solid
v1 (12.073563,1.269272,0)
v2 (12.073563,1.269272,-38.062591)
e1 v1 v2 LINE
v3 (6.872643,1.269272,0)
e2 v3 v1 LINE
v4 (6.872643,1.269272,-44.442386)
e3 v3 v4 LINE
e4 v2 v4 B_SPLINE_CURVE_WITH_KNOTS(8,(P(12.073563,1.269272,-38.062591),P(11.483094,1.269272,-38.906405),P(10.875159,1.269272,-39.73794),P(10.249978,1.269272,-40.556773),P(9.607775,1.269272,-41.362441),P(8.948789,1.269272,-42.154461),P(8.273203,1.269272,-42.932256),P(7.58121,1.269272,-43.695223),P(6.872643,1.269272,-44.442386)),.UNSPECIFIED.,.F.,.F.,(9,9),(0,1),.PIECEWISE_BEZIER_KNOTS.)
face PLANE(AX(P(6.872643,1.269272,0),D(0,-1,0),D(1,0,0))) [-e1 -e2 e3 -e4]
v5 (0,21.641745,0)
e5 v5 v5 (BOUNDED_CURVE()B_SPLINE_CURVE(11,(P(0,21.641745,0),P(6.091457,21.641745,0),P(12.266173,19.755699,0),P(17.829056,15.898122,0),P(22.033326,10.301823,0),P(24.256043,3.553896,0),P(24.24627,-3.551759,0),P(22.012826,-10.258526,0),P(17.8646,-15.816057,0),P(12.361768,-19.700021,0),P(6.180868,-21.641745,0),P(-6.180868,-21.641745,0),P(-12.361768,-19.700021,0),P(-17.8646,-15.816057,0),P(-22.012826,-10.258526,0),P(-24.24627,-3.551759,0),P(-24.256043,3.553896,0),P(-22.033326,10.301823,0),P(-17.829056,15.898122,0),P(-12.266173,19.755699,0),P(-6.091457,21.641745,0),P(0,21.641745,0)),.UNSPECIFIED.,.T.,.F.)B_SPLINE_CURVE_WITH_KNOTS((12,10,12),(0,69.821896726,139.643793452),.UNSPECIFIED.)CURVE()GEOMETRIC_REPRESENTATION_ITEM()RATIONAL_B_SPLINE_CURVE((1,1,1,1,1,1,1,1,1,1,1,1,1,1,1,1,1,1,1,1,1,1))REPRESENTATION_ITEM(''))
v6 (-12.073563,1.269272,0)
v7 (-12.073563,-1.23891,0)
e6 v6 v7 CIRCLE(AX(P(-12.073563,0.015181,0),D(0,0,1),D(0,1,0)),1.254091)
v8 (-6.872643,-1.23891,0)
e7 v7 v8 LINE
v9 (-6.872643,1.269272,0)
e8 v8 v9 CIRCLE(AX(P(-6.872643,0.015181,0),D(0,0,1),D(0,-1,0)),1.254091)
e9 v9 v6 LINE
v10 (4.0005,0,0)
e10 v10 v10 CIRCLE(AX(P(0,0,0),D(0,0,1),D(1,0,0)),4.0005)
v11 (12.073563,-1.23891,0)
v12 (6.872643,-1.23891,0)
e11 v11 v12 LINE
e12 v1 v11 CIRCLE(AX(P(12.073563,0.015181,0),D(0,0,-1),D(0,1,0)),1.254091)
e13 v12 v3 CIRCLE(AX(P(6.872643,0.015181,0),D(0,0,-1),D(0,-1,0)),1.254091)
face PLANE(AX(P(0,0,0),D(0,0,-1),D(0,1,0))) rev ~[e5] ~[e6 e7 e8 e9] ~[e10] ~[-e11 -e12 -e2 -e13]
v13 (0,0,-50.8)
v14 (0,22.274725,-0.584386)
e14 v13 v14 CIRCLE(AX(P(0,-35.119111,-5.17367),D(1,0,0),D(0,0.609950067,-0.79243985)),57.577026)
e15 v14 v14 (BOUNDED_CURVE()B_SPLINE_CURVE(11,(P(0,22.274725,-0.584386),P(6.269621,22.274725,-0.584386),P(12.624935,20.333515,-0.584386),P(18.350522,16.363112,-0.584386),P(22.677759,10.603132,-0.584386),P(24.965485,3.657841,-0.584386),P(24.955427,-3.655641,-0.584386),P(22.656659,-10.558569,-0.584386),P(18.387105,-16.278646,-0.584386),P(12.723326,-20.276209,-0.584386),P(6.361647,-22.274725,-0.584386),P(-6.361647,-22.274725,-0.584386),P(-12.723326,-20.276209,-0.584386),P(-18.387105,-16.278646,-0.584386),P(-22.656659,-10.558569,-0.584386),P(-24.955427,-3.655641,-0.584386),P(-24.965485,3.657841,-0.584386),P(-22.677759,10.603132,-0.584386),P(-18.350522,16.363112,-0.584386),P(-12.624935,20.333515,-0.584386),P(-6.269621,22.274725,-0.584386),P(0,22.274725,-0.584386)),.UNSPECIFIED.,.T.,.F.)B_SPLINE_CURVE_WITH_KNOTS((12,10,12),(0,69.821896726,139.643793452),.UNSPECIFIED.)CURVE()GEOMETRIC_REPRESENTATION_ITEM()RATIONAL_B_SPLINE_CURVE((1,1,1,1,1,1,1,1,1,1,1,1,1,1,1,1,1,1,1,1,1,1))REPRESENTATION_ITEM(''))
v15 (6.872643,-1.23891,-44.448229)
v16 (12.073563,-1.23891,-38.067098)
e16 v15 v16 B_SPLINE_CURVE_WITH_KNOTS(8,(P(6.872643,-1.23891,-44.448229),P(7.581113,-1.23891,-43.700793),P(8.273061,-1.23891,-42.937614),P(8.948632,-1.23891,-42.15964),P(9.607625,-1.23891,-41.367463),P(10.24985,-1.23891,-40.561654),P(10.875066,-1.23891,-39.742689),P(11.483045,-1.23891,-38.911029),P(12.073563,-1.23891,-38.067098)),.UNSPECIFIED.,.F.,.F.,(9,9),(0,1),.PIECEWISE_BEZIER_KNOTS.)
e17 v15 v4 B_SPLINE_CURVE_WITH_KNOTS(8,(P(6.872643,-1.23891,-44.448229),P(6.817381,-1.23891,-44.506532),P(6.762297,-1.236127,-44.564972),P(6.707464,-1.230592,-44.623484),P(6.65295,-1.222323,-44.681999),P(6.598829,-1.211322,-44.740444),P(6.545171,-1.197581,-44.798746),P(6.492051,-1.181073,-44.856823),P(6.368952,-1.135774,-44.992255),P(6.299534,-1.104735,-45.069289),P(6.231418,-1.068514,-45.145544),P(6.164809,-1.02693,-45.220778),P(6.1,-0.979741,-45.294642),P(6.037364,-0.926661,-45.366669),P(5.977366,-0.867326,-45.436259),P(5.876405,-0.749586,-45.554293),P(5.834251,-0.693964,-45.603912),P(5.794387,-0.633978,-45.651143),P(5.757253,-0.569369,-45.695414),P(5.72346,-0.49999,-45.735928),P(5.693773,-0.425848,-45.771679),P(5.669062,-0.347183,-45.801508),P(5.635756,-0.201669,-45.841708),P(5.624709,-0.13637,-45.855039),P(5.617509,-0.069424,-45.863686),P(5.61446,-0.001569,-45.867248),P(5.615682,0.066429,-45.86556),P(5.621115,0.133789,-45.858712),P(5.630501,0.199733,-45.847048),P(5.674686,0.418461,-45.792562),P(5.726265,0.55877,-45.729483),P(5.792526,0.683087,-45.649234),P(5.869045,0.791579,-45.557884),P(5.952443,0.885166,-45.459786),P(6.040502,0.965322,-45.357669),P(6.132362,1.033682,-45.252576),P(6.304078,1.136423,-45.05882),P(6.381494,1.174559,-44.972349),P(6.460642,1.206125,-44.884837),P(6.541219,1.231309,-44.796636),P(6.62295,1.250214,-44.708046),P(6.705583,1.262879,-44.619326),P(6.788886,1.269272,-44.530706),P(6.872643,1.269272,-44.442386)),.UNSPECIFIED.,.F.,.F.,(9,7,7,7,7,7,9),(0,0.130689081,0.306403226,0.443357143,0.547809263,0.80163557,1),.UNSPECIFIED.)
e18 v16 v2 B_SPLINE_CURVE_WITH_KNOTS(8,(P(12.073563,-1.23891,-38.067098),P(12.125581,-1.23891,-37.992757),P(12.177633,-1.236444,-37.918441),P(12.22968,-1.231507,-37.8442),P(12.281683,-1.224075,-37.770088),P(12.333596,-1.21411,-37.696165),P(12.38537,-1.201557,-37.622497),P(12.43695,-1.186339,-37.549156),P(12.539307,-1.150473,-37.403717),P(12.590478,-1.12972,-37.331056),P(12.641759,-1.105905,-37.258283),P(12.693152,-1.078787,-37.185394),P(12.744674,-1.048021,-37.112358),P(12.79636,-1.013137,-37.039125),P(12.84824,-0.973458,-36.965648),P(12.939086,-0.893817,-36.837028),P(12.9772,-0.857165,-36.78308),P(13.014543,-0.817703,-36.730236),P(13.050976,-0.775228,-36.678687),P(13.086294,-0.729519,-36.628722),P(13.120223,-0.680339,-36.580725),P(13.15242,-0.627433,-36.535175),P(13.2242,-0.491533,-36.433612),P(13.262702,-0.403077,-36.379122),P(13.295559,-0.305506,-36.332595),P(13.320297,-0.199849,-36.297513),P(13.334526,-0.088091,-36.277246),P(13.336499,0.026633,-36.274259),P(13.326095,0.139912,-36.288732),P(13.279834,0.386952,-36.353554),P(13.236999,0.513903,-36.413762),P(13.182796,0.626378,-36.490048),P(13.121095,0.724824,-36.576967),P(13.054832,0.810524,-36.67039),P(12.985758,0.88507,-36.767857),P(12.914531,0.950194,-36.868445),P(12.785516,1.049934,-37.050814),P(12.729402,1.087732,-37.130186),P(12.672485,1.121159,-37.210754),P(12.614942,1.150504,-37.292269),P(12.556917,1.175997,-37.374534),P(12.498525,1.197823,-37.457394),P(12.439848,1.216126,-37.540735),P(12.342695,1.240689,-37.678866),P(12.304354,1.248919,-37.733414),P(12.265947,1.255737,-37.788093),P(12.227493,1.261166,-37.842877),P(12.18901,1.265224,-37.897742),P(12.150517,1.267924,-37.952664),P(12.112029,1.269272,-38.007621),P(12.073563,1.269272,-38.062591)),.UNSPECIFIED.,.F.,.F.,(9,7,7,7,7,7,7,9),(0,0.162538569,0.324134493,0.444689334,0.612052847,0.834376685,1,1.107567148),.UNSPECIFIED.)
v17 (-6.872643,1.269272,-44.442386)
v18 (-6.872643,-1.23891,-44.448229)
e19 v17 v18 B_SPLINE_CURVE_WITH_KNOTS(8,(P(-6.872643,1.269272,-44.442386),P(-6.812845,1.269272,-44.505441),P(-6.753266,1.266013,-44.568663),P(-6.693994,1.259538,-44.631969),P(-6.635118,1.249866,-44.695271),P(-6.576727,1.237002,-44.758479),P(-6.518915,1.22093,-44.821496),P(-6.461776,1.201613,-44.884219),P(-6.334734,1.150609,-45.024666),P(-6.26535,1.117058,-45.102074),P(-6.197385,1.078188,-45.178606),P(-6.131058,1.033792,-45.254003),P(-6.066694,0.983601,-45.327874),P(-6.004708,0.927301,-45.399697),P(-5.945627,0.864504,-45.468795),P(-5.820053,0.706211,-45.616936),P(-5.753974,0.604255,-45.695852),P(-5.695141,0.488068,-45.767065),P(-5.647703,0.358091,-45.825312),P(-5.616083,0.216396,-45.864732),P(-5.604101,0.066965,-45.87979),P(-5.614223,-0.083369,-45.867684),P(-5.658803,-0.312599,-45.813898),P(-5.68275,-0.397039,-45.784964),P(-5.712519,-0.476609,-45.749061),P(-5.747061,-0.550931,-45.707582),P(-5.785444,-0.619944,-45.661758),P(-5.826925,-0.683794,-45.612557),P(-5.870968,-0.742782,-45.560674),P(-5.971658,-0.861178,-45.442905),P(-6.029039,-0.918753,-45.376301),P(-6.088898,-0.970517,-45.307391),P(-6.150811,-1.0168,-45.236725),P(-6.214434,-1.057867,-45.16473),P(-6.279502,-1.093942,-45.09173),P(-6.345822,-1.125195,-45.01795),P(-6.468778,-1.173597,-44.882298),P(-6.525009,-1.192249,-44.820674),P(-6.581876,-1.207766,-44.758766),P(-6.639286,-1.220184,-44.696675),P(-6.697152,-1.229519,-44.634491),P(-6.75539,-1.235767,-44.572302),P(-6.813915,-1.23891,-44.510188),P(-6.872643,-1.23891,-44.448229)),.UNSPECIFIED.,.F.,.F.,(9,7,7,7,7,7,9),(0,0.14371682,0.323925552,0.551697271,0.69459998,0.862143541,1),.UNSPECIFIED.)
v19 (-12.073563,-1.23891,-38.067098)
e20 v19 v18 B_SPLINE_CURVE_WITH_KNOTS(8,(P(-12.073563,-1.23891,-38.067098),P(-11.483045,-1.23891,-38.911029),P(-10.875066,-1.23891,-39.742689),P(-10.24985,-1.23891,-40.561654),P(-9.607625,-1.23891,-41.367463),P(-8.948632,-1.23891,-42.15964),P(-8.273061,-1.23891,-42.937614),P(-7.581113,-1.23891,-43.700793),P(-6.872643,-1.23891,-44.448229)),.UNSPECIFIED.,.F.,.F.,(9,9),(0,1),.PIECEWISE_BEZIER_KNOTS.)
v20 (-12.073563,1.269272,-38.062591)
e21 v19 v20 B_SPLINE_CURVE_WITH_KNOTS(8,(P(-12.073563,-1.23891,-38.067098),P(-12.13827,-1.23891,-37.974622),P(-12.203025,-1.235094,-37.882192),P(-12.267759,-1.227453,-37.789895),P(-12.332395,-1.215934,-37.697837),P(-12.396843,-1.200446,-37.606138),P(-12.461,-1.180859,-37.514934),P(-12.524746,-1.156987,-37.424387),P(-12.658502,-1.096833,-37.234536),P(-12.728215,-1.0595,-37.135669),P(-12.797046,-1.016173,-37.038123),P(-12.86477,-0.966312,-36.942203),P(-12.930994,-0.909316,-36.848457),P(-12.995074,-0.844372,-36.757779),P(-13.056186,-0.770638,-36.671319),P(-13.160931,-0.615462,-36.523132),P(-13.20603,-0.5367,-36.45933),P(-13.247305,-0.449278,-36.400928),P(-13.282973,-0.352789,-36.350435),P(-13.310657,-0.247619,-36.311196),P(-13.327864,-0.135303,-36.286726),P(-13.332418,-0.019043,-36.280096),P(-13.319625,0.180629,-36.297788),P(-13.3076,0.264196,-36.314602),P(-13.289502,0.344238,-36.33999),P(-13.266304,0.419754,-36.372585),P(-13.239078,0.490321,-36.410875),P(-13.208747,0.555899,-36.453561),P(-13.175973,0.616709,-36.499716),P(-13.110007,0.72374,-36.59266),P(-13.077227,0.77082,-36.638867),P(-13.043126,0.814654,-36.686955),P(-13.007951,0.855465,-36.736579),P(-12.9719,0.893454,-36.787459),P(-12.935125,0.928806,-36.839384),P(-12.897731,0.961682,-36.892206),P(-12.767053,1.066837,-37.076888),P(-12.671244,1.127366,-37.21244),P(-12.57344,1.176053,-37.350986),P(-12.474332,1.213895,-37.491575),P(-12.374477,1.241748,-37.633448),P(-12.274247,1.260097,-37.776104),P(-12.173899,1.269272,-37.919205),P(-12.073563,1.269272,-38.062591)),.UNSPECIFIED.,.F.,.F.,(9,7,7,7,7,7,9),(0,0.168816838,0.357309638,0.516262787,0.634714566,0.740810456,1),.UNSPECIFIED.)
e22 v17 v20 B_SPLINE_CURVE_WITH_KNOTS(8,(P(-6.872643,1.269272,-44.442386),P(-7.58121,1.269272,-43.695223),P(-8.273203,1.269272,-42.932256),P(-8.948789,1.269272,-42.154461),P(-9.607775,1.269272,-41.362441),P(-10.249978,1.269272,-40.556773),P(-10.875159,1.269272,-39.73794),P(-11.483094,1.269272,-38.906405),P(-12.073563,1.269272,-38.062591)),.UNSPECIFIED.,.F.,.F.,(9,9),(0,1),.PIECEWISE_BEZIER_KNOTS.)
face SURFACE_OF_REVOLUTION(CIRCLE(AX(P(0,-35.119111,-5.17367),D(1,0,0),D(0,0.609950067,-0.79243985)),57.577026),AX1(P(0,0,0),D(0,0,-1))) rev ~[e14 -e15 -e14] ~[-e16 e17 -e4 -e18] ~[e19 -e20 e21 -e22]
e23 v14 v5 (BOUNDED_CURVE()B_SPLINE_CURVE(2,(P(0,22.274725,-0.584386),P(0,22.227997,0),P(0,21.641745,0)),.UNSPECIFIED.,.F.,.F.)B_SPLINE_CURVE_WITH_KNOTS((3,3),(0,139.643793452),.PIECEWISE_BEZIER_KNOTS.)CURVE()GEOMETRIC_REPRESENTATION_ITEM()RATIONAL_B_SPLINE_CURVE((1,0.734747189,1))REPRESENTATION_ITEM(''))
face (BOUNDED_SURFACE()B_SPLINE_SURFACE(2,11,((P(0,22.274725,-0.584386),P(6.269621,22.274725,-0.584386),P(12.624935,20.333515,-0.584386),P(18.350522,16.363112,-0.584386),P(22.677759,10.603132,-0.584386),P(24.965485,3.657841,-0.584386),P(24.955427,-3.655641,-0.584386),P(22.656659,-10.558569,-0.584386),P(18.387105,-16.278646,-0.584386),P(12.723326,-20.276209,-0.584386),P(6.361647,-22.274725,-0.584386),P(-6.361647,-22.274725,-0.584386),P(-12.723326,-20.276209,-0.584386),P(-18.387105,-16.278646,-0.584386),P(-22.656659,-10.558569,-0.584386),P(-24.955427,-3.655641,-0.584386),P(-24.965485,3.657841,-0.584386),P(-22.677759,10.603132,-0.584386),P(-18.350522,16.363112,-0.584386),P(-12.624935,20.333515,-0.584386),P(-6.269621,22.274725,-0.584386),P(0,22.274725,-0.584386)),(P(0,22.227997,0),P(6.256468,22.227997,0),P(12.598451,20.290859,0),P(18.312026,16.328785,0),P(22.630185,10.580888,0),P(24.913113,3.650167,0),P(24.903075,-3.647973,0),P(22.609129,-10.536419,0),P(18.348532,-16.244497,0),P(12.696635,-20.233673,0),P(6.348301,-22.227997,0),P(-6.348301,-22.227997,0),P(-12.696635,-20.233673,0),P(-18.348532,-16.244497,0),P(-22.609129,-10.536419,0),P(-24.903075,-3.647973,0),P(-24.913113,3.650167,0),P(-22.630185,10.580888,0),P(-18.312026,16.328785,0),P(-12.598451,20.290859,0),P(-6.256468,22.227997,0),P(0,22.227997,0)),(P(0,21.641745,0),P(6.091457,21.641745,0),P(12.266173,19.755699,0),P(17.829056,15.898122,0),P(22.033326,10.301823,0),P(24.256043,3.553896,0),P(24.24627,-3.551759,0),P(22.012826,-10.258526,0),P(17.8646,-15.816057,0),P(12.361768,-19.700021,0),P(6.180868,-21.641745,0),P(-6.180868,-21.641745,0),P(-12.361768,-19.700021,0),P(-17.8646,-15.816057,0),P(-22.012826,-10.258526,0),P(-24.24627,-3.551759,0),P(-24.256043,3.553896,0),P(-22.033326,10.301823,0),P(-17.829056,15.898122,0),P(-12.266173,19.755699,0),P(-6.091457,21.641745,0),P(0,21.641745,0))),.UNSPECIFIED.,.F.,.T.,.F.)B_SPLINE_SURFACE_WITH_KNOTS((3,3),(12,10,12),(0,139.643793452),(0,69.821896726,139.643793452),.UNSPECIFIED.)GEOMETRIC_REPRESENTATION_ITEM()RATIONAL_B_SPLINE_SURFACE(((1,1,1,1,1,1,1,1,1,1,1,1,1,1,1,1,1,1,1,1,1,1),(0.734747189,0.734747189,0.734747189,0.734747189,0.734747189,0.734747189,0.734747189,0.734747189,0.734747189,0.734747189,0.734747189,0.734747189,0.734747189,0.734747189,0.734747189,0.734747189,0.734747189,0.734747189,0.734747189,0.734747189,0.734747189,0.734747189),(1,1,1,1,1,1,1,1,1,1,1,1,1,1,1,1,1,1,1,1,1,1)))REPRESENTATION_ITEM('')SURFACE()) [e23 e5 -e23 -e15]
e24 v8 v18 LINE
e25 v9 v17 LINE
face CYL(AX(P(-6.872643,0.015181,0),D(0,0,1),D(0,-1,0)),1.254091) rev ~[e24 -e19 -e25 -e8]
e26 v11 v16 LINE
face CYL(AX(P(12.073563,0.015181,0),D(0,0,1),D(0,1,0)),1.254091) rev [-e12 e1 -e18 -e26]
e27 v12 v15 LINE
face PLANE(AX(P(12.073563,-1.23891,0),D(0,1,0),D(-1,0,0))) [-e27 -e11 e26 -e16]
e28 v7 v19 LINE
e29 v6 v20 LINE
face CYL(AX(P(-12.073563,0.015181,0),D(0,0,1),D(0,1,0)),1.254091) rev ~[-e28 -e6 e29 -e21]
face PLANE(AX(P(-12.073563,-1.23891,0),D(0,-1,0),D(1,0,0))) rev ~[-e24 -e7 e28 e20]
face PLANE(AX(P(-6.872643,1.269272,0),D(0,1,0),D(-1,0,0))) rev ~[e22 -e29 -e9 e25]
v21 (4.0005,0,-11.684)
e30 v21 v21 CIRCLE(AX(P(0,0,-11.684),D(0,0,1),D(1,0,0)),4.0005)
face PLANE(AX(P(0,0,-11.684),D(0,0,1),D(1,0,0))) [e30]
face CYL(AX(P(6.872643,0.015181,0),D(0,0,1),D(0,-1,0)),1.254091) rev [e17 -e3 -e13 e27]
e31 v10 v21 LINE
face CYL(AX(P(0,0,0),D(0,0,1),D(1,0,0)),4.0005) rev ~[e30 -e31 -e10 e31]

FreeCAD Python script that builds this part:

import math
import FreeCAD as App
import Part
import Sketcher
from FreeCAD import Vector
Q = App.Units.Quantity


def edges_at(feature, points):
    """Names of the edges that pass closest to the given points."""
    edges = feature.Shape.Edges
    near = lambda p: min(range(len(edges)), key=lambda i: edges[i].distToShape(Part.Vertex(*p))[0])
    return sorted({f"Edge{near(p) + 1}" for p in points})

doc = App.newDocument("Part")
params = doc.addObject("Spreadsheet::Sheet", "Params")
for row, (alias, value) in enumerate([
    ("sketch1_height", "2 in"),
    ("sketch1_width", "0.875 in"),
    ("revolution_angle", "360 deg"),
    ("fillet_radius", "0.025 in"),
    ("sketch2_diameter", "0.315 in"),
    ("pocket1_length", "0.46 in"),
    ("pocket2_length", "3.25 in"),
], start=1):
    params.set(f"A{row}", alias)
    params.set(f"B{row}", "=" + value)
    params.setAlias(f"B{row}", alias)

body = doc.addObject("PartDesign::Body", "Body")

# Sketch on YZ plane
sketch1 = body.newObject("Sketcher::SketchObject", "Sketch")
sketch1.AttachmentSupport = (doc.getObject("YZ_Plane"), [""])
sketch1.MapMode = "FlatFace"
sketch1.addGeometry([
    Part.LineSegment(Vector(0, 0, 0), Vector(0, -51, 0)),
    Part.ArcOfCircle(Part.Circle(Vector(-35, -5, 0), Vector(0, 0, 1), 58), math.radians(-52), math.radians(5)),
    Part.LineSegment(Vector(22, 0, 0), Vector(0, 0, 0)),
], False)
sketch1.addConstraint([
    Sketcher.Constraint("Coincident", 0, 2, 1, 1),
    Sketcher.Constraint("Coincident", 1, 2, 2, 1),
    Sketcher.Constraint("Coincident", 2, 2, 0, 1),
    Sketcher.Constraint("Vertical", 0),
    Sketcher.Constraint("Horizontal", 2),
    Sketcher.Constraint("Coincident", 2, 2, -1, 1),
    Sketcher.Constraint("DistanceY", 0, 2, 0, 1, Q("2 in")),
    Sketcher.Constraint("DistanceX", 2, 2, 2, 1, Q("0.875 in")),
    Sketcher.Constraint("Radius", 1, 57.577026),
])
sketch1.setExpression("Constraints[6]", "Params.sketch1_height")
sketch1.setExpression("Constraints[7]", "Params.sketch1_width")
revolution = body.newObject("PartDesign::Revolution", "Revolution")
revolution.Profile = sketch1
revolution.ReferenceAxis = (sketch1, ["V_Axis"])
revolution.setExpression("Angle", "Params.revolution_angle")
doc.recompute()

fillet = body.newObject("PartDesign::Fillet", "Fillet")
fillet.Base = (revolution, edges_at(revolution, [(0, -22.225, 0)]))
fillet.setExpression("Radius", "Params.fillet_radius")

# Sketch on XY plane
sketch2 = body.newObject("Sketcher::SketchObject", "Sketch001")
sketch2.AttachmentSupport = (doc.getObject("XY_Plane"), [""])
sketch2.MapMode = "FlatFace"
sketch2.addGeometry(Part.Circle(Vector(0, 0, 0), Vector(0, 0, 1), 4), False)
sketch2.addConstraint([
    Sketcher.Constraint("Coincident", 0, 3, -1, 1),
    Sketcher.Constraint("Diameter", 0, Q("0.315 in")),
])
sketch2.setExpression("Constraints[1]", "Params.sketch2_diameter")
pocket1 = body.newObject("PartDesign::Pocket", "Pocket")
pocket1.Profile = sketch2
pocket1.setExpression("Length", "Params.pocket1_length")

# Sketch on XY plane
sketch3 = body.newObject("Sketcher::SketchObject", "Sketch002")
sketch3.AttachmentSupport = (doc.getObject("XY_Plane"), [""])
sketch3.MapMode = "FlatFace"
sketch3.addGeometry([
    Part.LineSegment(Vector(12.1, 1.3, 0), Vector(6.9, 1.3, 0)),  # 0
    Part.ArcOfCircle(Part.Circle(Vector(6.9, 0, 0), Vector(0, 0, 1), 1.3), math.radians(90), math.radians(270)),  # 1
    Part.LineSegment(Vector(6.9, -1.2, 0), Vector(12.1, -1.2, 0)),  # 2
    Part.ArcOfCircle(Part.Circle(Vector(12.1, 0, 0), Vector(0, 0, 1), 1.3), math.radians(-90), math.radians(90)),  # 3
    Part.LineSegment(Vector(-6.9, 1.3, 0), Vector(-12.1, 1.3, 0)),  # 4
    Part.ArcOfCircle(Part.Circle(Vector(-12.1, 0, 0), Vector(0, 0, 1), 1.3), math.radians(90), math.radians(270)),  # 5
    Part.LineSegment(Vector(-12.1, -1.2, 0), Vector(-6.9, -1.2, 0)),  # 6
    Part.ArcOfCircle(Part.Circle(Vector(-6.9, 0, 0), Vector(0, 0, 1), 1.3), math.radians(-90), math.radians(90)),  # 7
], False)
sketch3.addConstraint([
    Sketcher.Constraint("Tangent", 0, 2, 1, 1),
    Sketcher.Constraint("Tangent", 1, 2, 2, 1),
    Sketcher.Constraint("Tangent", 2, 2, 3, 1),
    Sketcher.Constraint("Tangent", 3, 2, 0, 1),
    Sketcher.Constraint("Tangent", 4, 2, 5, 1),
    Sketcher.Constraint("Tangent", 5, 2, 6, 1),
    Sketcher.Constraint("Tangent", 6, 2, 7, 1),
    Sketcher.Constraint("Tangent", 7, 2, 4, 1),
    Sketcher.Constraint("Horizontal", 0),
    Sketcher.Constraint("Horizontal", 2),
    Sketcher.Constraint("Horizontal", 4),
    Sketcher.Constraint("Horizontal", 6),
    Sketcher.Constraint("Equal", 3, 5),
    Sketcher.Constraint("Symmetric", 3, 3, 5, 3, -2),
    Sketcher.Constraint("Equal", 2, 4),
    Sketcher.Constraint("Radius", 1, 1.254091),
    Sketcher.Constraint("DistanceX", 0, 2, 0, 1, 5.200919),
    Sketcher.Constraint("DistanceY", -1, 1, 1, 3, 0.015181),
    Sketcher.Constraint("DistanceX", -1, 1, 1, 3, 6.872643),
])
pocket2 = body.newObject("PartDesign::Pocket", "Pocket001")
pocket2.Profile = sketch3
pocket2.setExpression("Length", "Params.pocket2_length")

doc.recompute()
